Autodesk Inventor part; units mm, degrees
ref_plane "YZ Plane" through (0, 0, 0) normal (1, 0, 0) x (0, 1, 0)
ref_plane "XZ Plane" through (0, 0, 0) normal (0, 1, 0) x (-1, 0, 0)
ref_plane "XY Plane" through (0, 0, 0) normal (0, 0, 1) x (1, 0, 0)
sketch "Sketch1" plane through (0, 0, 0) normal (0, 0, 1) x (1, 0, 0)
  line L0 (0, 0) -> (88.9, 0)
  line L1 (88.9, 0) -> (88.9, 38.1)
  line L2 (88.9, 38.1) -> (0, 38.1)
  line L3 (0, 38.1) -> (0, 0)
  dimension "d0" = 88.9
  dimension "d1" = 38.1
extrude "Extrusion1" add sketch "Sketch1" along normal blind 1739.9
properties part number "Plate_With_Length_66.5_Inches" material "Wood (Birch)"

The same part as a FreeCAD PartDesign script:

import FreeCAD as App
import Part
import Sketcher
Q = App.Units.Quantity

doc = App.newDocument("Part")
body = doc.addObject("PartDesign::Body", "Body")

# Sketch on XY plane
sketch1 = body.newObject("Sketcher::SketchObject", "Sketch")
sketch1.AttachmentSupport = (doc.getObject("XY_Plane"), [""])
sketch1.MapMode = "FlatFace"
sketch1.addGeometry(Part.LineSegment(App.Vector(0, 38.1, 0), App.Vector(0, 0, 0)), False)
sketch1.addGeometry(Part.LineSegment(App.Vector(0, 0, 0), App.Vector(88.9, 0, 0)), False)
sketch1.addGeometry(Part.LineSegment(App.Vector(88.9, 0, 0), App.Vector(88.9, 38.1, 0)), False)
sketch1.addGeometry(Part.LineSegment(App.Vector(88.9, 38.1, 0), App.Vector(0, 38.1, 0)), False)
sketch1.addConstraint(Sketcher.Constraint("Coincident", 0, 2, 1, 1))
sketch1.addConstraint(Sketcher.Constraint("Coincident", 1, 2, 2, 1))
sketch1.addConstraint(Sketcher.Constraint("Coincident", 2, 2, 3, 1))
sketch1.addConstraint(Sketcher.Constraint("Coincident", 3, 2, 0, 1))
sketch1.addConstraint(Sketcher.Constraint("Vertical", 0))
sketch1.addConstraint(Sketcher.Constraint("Horizontal", 1))
sketch1.addConstraint(Sketcher.Constraint("Vertical", 2))
sketch1.addConstraint(Sketcher.Constraint("Horizontal", 3))
sketch1.addConstraint(Sketcher.Constraint("Coincident", 0, 2, -1, 1))
sketch1.addConstraint(Sketcher.Constraint("DistanceX", 1, 1, 1, 2, Q("3.5 in")))
sketch1.addConstraint(Sketcher.Constraint("DistanceY", 0, 2, 0, 1, Q("1.5 in")))
pad1 = body.newObject("PartDesign::Pad", "Pad")
pad1.Profile = sketch1
pad1.Length = Q("68.5 in")

doc.recompute()
